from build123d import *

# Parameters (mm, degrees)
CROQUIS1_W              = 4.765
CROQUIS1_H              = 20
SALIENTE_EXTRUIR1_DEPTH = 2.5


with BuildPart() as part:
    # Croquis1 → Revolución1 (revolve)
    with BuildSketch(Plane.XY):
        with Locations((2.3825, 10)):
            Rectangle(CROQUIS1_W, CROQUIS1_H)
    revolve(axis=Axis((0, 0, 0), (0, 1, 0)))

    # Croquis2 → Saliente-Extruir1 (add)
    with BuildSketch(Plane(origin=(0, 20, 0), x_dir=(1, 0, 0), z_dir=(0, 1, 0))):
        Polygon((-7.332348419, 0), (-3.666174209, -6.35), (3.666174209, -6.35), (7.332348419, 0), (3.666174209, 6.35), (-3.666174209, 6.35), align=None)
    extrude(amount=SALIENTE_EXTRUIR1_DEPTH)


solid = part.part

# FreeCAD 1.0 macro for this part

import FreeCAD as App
import Part
import Sketcher

V = App.Vector
Q = App.Units.Quantity


def add_polygon(sketch, points):
    """Adds a closed chain of lines whose ends are joined by coincident constraints."""
    first, n = sketch.GeometryCount, len(points)
    for a, b in zip(points, points[1:] + points[:1]):
        sketch.addGeometry(Part.LineSegment(App.Vector(*a, 0), App.Vector(*b, 0)), False)
    for i in range(n):
        sketch.addConstraint(Sketcher.Constraint("Coincident", first + i, 2, first + (i + 1) % n, 1))

doc = App.newDocument("Part")
params = doc.addObject("Spreadsheet::Sheet", "Params")
for row, (alias, value) in enumerate([
    ("sketch1_height", "20 mm"),
    ("revolution_angle", "360 deg"),
    ("pad1_length", "2.5 mm"),
], start=1):
    params.set(f"A{row}", alias)
    params.set(f"B{row}", "=" + value)
    params.setAlias(f"B{row}", alias)

body = doc.addObject("PartDesign::Body", "Body")

# Sketch on XY plane
sketch1 = body.newObject("Sketcher::SketchObject", "Sketch")
sketch1.AttachmentSupport = (doc.getObject("XY_Plane"), [""])
sketch1.MapMode = "FlatFace"
add_polygon(sketch1, [(0, 20), (0, 0), (4.765, 0), (4.765, 20)])  # lines 0-3
sketch1.addConstraint([
    Sketcher.Constraint("Vertical", 0),
    Sketcher.Constraint("Horizontal", 1),
    Sketcher.Constraint("Vertical", 2),
    Sketcher.Constraint("Horizontal", 3),
    Sketcher.Constraint("Coincident", 0, 2, -1, 1),
    Sketcher.Constraint("DistanceY", 0, 2, 0, 1, Q("20 mm")),
    Sketcher.Constraint("DistanceX", 1, 1, 1, 2, Q("4.765 mm")),
])
sketch1.setExpression("Constraints[9]", "Params.sketch1_height")
revolution = body.newObject("PartDesign::Revolution", "Revolution")
revolution.Profile = sketch1
revolution.ReferenceAxis = (sketch1, ["V_Axis"])
revolution.setExpression("Angle", "Params.revolution_angle")

# Sketch on XZ plane
sketch2 = body.newObject("Sketcher::SketchObject", "Sketch001")
sketch2.AttachmentSupport = (doc.getObject("XZ_Plane"), [""])
sketch2.MapMode = "FlatFace"
sketch2.AttachmentOffset = App.Placement(V(0, 0, -20), App.Rotation())
add_polygon(sketch2, [(-7.332348, 0), (-3.666174, 6.35), (3.666174, 6.35), (7.332348, 0), (3.666174, -6.35), (-3.666174, -6.35)])  # lines 0-5
sketch2.addConstraint([
    Sketcher.Constraint("Horizontal", 1),
    Sketcher.Constraint("Horizontal", 4),
    Sketcher.Constraint("Symmetric", 0, 2, 3, 2, -1, 1),
    Sketcher.Constraint("Symmetric", 2, 2, 5, 2, -1, 1),
    Sketcher.Constraint("PointOnObject", 2, 2, -1),
    Sketcher.Constraint("Parallel", 2, 5),
    Sketcher.Constraint("Vertical", 1, 2, 3, 2),
    Sketcher.Constraint("Angle", 0, Q("60 deg")),
    Sketcher.Constraint("DistanceY", 3, 2, 1, 2, Q("12.7 mm")),
    Sketcher.Constraint("DistanceX", 1, 1, 1, 2, Q("7.332348 mm")),
])
pad1 = body.newObject("PartDesign::Pad", "Pad")
pad1.Profile = sketch2
pad1.setExpression("Length", "Params.pad1_length")
pad1.Reversed = True

doc.recompute()
